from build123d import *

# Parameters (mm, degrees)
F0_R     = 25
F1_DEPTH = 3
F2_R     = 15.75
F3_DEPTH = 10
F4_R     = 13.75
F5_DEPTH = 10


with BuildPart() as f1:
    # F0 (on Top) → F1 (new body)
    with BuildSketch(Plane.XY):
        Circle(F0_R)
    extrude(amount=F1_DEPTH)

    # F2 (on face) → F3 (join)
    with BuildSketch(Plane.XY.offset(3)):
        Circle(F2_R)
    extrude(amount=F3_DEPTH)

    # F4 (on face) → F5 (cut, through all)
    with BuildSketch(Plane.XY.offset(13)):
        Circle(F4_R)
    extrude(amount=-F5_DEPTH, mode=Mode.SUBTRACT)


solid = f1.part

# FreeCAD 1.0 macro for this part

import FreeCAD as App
import Part
import Sketcher

doc = App.newDocument("Part")
body = doc.addObject("PartDesign::Body", "Body")

# Sketch on XY plane
sketch1 = body.newObject("Sketcher::SketchObject", "Sketch")
sketch1.AttachmentSupport = (doc.getObject("XY_Plane"), [""])
sketch1.MapMode = "FlatFace"
sketch1.addGeometry(Part.Circle(App.Vector(0, 0, 0), App.Vector(0, 0, 1), 25), False)
sketch1.addConstraint([
    Sketcher.Constraint("Coincident", 0, 3, -1, 1),
    Sketcher.Constraint("Diameter", 0, 50.0),
])
pad1 = body.newObject("PartDesign::Pad", "Pad")
pad1.Profile = sketch1
pad1.Length = 3

# Sketch on XY plane
sketch2 = body.newObject("Sketcher::SketchObject", "Sketch001")
sketch2.AttachmentSupport = (doc.getObject("XY_Plane"), [""])
sketch2.MapMode = "FlatFace"
sketch2.AttachmentOffset = App.Placement(App.Vector(0, 0, 3), App.Rotation())
sketch2.addGeometry(Part.Circle(App.Vector(0, 0, 0), App.Vector(0, 0, 1), 16), False)
sketch2.addConstraint([
    Sketcher.Constraint("Coincident", 0, 3, -1, 1),
    Sketcher.Constraint("Diameter", 0, 31.5),
])
pad2 = body.newObject("PartDesign::Pad", "Pad001")
pad2.Profile = sketch2
pad2.Length = 10

# Sketch on XY plane
sketch3 = body.newObject("Sketcher::SketchObject", "Sketch002")
sketch3.AttachmentSupport = (doc.getObject("XY_Plane"), [""])
sketch3.MapMode = "FlatFace"
sketch3.AttachmentOffset = App.Placement(App.Vector(0, 0, 13), App.Rotation())
sketch3.addGeometry(Part.Circle(App.Vector(0, 0, 0), App.Vector(0, 0, 1), 14), False)
sketch3.addConstraint([
    Sketcher.Constraint("Coincident", 0, 3, -1, 1),
    Sketcher.Constraint("Diameter", 0, 27.5),
])
pocket1 = body.newObject("PartDesign::Pocket", "Pocket")
pocket1.Profile = sketch3
pocket1.Length = 10

doc.recompute()
